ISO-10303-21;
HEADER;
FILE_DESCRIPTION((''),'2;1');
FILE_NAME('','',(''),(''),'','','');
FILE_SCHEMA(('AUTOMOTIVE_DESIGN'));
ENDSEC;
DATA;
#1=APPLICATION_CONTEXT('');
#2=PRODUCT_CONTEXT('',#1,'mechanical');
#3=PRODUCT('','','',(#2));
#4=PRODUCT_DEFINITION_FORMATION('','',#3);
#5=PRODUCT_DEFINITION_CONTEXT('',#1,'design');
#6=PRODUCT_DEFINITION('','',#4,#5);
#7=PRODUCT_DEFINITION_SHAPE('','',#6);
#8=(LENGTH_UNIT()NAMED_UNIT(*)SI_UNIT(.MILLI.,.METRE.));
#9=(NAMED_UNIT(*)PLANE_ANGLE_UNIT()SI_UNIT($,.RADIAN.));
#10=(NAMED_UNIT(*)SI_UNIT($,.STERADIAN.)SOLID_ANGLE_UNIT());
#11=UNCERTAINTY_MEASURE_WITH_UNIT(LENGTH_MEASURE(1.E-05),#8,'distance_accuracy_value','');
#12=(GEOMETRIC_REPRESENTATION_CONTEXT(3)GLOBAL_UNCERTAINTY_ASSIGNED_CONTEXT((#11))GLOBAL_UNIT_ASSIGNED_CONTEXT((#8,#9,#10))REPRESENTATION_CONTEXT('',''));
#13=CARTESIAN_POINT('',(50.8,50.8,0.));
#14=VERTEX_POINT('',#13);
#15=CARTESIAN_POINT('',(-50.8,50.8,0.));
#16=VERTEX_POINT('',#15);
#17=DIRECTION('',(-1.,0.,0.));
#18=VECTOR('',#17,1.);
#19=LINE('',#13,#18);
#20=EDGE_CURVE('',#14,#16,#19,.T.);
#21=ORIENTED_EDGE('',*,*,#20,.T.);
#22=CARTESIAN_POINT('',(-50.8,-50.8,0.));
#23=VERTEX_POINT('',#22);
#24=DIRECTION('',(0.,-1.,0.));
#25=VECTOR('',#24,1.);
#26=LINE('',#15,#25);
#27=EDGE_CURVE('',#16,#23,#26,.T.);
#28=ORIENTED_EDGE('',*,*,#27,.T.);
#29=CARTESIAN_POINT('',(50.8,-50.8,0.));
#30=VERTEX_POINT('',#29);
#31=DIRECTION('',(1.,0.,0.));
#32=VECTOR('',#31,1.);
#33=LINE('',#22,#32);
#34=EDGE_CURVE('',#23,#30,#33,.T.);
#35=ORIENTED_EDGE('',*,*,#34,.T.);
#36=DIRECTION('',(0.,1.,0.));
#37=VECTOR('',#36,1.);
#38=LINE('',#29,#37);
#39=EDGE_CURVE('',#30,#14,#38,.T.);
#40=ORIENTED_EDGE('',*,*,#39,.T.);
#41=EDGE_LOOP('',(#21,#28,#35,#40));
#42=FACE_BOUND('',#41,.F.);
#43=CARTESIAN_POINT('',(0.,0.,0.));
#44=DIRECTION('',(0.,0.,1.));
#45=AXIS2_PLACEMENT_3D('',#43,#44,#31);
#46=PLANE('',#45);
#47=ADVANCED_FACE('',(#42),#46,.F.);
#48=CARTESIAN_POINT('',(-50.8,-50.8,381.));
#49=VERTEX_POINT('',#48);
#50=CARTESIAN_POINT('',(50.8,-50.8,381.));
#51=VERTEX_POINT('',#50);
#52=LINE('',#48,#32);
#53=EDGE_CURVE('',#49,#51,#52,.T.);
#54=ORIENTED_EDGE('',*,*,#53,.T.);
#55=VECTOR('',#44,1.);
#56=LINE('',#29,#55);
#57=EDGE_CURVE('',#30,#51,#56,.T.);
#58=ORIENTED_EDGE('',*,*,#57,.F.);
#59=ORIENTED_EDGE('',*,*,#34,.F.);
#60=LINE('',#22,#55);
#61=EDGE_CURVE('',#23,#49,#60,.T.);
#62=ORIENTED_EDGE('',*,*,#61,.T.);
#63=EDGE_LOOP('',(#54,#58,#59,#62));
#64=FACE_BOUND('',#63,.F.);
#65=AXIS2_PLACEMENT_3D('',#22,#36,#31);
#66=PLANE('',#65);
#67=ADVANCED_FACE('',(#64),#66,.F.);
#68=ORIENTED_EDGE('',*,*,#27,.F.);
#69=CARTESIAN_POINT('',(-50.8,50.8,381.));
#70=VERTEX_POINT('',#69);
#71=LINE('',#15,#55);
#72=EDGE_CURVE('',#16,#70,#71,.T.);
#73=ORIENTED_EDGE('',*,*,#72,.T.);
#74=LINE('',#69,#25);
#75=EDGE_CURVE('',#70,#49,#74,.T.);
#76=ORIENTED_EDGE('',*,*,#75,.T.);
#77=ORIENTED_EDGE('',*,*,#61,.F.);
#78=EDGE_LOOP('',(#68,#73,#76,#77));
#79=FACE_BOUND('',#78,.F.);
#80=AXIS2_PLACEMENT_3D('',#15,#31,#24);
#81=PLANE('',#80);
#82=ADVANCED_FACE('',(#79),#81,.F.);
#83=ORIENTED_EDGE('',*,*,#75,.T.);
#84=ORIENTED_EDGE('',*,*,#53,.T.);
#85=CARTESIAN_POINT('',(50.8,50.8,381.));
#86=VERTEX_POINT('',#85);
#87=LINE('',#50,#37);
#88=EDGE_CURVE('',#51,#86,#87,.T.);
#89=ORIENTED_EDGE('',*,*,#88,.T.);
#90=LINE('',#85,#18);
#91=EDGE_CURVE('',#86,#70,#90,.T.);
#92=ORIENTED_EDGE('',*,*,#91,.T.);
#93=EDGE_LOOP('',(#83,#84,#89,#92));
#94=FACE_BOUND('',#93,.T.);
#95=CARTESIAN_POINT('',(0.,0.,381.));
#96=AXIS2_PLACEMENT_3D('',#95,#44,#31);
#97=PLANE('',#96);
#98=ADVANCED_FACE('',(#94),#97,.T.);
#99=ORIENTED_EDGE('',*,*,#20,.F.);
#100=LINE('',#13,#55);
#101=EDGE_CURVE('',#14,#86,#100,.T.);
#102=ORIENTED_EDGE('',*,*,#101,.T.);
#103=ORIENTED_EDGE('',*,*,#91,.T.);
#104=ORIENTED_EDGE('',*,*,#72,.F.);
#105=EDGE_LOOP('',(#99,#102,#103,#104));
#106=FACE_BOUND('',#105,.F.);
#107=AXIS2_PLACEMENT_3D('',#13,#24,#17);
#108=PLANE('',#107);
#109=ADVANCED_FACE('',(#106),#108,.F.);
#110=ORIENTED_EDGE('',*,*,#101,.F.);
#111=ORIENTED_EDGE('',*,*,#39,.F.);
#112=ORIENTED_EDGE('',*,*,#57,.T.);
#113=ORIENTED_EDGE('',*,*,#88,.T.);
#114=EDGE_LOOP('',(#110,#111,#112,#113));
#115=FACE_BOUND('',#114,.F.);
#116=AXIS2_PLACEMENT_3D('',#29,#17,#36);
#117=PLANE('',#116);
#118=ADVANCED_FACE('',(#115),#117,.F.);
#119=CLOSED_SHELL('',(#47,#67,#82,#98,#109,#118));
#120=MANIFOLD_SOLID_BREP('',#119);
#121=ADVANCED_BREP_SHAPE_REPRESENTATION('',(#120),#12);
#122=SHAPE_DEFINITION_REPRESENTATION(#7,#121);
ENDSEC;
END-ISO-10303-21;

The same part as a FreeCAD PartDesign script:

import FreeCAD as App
import Part
import Sketcher
Q = App.Units.Quantity

doc = App.newDocument("Part")
body = doc.addObject("PartDesign::Body", "Body")

# Sketch on XY plane
sketch1 = body.newObject("Sketcher::SketchObject", "Sketch")
sketch1.AttachmentSupport = (doc.getObject("XY_Plane"), [""])
sketch1.MapMode = "FlatFace"
sketch1.addGeometry(Part.LineSegment(App.Vector(-50.8, 50.8, 0), App.Vector(-50.8, -50.8, 0)), False)
sketch1.addGeometry(Part.LineSegment(App.Vector(-50.8, -50.8, 0), App.Vector(50.8, -50.8, 0)), False)
sketch1.addGeometry(Part.LineSegment(App.Vector(50.8, -50.8, 0), App.Vector(50.8, 50.8, 0)), False)
sketch1.addGeometry(Part.LineSegment(App.Vector(50.8, 50.8, 0), App.Vector(-50.8, 50.8, 0)), False)
sketch1.addConstraint(Sketcher.Constraint("Coincident", 0, 2, 1, 1))
sketch1.addConstraint(Sketcher.Constraint("Coincident", 1, 2, 2, 1))
sketch1.addConstraint(Sketcher.Constraint("Coincident", 2, 2, 3, 1))
sketch1.addConstraint(Sketcher.Constraint("Coincident", 3, 2, 0, 1))
sketch1.addConstraint(Sketcher.Constraint("Vertical", 0))
sketch1.addConstraint(Sketcher.Constraint("Horizontal", 1))
sketch1.addConstraint(Sketcher.Constraint("Vertical", 2))
sketch1.addConstraint(Sketcher.Constraint("Horizontal", 3))
sketch1.addConstraint(Sketcher.Constraint("Symmetric", 0, 2, 2, 2, -1, 1))
sketch1.addConstraint(Sketcher.Constraint("Equal", 3, 0))
sketch1.addConstraint(Sketcher.Constraint("DistanceX", 1, 1, 1, 2, Q("4 in")))
pad1 = body.newObject("PartDesign::Pad", "Pad")
pad1.Profile = sketch1
pad1.Length = Q("15 in")

doc.recompute()
